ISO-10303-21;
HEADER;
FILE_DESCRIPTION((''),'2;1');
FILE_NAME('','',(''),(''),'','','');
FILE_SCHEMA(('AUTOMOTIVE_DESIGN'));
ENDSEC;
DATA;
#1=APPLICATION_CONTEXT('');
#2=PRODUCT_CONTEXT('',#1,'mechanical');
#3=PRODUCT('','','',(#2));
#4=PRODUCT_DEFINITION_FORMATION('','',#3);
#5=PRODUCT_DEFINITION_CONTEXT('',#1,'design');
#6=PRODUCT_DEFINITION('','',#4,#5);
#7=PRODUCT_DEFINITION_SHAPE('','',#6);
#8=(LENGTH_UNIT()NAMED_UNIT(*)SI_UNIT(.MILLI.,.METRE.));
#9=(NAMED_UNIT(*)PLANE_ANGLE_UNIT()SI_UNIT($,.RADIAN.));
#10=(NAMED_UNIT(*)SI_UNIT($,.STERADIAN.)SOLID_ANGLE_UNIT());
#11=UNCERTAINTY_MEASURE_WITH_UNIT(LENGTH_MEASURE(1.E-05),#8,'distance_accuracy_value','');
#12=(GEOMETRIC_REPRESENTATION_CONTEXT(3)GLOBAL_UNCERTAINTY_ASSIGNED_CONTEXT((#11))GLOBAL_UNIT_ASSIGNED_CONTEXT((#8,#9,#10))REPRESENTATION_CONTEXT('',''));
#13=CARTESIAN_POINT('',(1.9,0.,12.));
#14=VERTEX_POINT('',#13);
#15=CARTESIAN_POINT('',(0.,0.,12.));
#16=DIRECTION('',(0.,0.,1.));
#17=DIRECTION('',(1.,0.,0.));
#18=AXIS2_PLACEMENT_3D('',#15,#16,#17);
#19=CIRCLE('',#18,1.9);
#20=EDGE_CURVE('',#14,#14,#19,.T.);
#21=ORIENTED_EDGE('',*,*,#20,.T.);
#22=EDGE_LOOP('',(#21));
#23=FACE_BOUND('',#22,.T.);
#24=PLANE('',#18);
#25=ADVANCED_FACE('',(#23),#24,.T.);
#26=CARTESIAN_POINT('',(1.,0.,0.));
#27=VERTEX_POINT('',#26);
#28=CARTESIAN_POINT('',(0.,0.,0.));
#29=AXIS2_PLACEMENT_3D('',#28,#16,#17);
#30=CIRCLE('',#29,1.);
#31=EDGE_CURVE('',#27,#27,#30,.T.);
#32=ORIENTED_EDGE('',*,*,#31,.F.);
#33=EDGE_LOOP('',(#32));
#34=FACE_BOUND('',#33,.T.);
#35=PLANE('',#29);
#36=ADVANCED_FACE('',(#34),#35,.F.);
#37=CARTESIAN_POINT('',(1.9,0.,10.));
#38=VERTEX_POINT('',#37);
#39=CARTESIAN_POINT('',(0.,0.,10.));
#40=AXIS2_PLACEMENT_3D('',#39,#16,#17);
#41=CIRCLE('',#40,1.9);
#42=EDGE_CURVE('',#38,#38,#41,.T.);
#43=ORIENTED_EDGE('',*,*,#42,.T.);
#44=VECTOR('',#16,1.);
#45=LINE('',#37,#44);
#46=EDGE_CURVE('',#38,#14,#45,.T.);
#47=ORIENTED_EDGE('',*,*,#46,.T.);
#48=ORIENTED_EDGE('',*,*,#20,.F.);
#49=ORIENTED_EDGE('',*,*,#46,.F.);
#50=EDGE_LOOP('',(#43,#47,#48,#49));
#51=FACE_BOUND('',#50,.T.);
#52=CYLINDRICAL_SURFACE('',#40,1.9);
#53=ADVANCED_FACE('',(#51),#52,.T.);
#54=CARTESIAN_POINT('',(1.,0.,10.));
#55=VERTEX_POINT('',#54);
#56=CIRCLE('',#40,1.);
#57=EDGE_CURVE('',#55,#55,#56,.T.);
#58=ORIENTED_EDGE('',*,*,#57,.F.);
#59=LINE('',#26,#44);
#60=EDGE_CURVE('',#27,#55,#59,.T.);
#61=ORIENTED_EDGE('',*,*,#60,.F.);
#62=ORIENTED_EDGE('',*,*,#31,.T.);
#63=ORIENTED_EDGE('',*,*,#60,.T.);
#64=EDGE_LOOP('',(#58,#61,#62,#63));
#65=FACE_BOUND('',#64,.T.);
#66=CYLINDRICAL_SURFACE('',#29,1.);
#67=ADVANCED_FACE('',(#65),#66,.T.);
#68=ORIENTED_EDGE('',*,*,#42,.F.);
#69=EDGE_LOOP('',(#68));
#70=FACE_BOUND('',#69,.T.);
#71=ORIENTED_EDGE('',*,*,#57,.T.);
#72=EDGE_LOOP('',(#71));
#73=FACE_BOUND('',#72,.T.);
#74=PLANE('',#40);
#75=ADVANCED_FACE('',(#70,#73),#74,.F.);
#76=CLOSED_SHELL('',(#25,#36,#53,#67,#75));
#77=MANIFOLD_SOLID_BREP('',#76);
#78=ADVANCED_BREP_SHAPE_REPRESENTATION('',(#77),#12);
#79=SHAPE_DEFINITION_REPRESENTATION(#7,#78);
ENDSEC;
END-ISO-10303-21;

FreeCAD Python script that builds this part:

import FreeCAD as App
import Part
import Sketcher

doc = App.newDocument("Part")
body = doc.addObject("PartDesign::Body", "Body")

# Sketch on XZ plane
sketch1 = body.newObject("Sketcher::SketchObject", "Sketch")
sketch1.AttachmentSupport = (doc.getObject("XZ_Plane"), [""])
sketch1.MapMode = "FlatFace"
sketch1.addGeometry(Part.LineSegment(App.Vector(0, 0, 0), App.Vector(1, 0, 0)), False)
sketch1.addGeometry(Part.LineSegment(App.Vector(1, 0, 0), App.Vector(1, 10, 0)), False)
sketch1.addGeometry(Part.LineSegment(App.Vector(1, 10, 0), App.Vector(1.9, 10, 0)), False)
sketch1.addGeometry(Part.LineSegment(App.Vector(1.9, 10, 0), App.Vector(1.9, 12, 0)), False)
sketch1.addGeometry(Part.LineSegment(App.Vector(1.9, 12, 0), App.Vector(0, 12, 0)), False)
sketch1.addGeometry(Part.LineSegment(App.Vector(0, 12, 0), App.Vector(0, 0, 0)), False)
sketch1.addConstraint(Sketcher.Constraint("Coincident", 0, 2, 1, 1))
sketch1.addConstraint(Sketcher.Constraint("Coincident", 1, 2, 2, 1))
sketch1.addConstraint(Sketcher.Constraint("Coincident", 2, 2, 3, 1))
sketch1.addConstraint(Sketcher.Constraint("Coincident", 3, 2, 4, 1))
sketch1.addConstraint(Sketcher.Constraint("Coincident", 4, 2, 5, 1))
sketch1.addConstraint(Sketcher.Constraint("Coincident", 5, 2, 0, 1))
sketch1.addConstraint(Sketcher.Constraint("Horizontal", 0))
sketch1.addConstraint(Sketcher.Constraint("Vertical", 1))
sketch1.addConstraint(Sketcher.Constraint("Horizontal", 2))
sketch1.addConstraint(Sketcher.Constraint("Vertical", 3))
sketch1.addConstraint(Sketcher.Constraint("Horizontal", 4))
sketch1.addConstraint(Sketcher.Constraint("Vertical", 5))
sketch1.addConstraint(Sketcher.Constraint("Coincident", 5, 2, -1, 1))
sketch1.addConstraint(Sketcher.Constraint("DistanceX", 0, 1, 0, 2, 1.0))
sketch1.addConstraint(Sketcher.Constraint("DistanceY", 1, 1, 1, 2, 10.0))
sketch1.addConstraint(Sketcher.Constraint("DistanceY", 3, 1, 3, 2, 2.0))
sketch1.addConstraint(Sketcher.Constraint("DistanceX", 2, 1, 2, 2, 0.9))
revolution = body.newObject("PartDesign::Revolution", "Revolution")
revolution.Profile = sketch1
revolution.ReferenceAxis = (sketch1, ["V_Axis"])
revolution.Angle = 360

doc.recompute()
